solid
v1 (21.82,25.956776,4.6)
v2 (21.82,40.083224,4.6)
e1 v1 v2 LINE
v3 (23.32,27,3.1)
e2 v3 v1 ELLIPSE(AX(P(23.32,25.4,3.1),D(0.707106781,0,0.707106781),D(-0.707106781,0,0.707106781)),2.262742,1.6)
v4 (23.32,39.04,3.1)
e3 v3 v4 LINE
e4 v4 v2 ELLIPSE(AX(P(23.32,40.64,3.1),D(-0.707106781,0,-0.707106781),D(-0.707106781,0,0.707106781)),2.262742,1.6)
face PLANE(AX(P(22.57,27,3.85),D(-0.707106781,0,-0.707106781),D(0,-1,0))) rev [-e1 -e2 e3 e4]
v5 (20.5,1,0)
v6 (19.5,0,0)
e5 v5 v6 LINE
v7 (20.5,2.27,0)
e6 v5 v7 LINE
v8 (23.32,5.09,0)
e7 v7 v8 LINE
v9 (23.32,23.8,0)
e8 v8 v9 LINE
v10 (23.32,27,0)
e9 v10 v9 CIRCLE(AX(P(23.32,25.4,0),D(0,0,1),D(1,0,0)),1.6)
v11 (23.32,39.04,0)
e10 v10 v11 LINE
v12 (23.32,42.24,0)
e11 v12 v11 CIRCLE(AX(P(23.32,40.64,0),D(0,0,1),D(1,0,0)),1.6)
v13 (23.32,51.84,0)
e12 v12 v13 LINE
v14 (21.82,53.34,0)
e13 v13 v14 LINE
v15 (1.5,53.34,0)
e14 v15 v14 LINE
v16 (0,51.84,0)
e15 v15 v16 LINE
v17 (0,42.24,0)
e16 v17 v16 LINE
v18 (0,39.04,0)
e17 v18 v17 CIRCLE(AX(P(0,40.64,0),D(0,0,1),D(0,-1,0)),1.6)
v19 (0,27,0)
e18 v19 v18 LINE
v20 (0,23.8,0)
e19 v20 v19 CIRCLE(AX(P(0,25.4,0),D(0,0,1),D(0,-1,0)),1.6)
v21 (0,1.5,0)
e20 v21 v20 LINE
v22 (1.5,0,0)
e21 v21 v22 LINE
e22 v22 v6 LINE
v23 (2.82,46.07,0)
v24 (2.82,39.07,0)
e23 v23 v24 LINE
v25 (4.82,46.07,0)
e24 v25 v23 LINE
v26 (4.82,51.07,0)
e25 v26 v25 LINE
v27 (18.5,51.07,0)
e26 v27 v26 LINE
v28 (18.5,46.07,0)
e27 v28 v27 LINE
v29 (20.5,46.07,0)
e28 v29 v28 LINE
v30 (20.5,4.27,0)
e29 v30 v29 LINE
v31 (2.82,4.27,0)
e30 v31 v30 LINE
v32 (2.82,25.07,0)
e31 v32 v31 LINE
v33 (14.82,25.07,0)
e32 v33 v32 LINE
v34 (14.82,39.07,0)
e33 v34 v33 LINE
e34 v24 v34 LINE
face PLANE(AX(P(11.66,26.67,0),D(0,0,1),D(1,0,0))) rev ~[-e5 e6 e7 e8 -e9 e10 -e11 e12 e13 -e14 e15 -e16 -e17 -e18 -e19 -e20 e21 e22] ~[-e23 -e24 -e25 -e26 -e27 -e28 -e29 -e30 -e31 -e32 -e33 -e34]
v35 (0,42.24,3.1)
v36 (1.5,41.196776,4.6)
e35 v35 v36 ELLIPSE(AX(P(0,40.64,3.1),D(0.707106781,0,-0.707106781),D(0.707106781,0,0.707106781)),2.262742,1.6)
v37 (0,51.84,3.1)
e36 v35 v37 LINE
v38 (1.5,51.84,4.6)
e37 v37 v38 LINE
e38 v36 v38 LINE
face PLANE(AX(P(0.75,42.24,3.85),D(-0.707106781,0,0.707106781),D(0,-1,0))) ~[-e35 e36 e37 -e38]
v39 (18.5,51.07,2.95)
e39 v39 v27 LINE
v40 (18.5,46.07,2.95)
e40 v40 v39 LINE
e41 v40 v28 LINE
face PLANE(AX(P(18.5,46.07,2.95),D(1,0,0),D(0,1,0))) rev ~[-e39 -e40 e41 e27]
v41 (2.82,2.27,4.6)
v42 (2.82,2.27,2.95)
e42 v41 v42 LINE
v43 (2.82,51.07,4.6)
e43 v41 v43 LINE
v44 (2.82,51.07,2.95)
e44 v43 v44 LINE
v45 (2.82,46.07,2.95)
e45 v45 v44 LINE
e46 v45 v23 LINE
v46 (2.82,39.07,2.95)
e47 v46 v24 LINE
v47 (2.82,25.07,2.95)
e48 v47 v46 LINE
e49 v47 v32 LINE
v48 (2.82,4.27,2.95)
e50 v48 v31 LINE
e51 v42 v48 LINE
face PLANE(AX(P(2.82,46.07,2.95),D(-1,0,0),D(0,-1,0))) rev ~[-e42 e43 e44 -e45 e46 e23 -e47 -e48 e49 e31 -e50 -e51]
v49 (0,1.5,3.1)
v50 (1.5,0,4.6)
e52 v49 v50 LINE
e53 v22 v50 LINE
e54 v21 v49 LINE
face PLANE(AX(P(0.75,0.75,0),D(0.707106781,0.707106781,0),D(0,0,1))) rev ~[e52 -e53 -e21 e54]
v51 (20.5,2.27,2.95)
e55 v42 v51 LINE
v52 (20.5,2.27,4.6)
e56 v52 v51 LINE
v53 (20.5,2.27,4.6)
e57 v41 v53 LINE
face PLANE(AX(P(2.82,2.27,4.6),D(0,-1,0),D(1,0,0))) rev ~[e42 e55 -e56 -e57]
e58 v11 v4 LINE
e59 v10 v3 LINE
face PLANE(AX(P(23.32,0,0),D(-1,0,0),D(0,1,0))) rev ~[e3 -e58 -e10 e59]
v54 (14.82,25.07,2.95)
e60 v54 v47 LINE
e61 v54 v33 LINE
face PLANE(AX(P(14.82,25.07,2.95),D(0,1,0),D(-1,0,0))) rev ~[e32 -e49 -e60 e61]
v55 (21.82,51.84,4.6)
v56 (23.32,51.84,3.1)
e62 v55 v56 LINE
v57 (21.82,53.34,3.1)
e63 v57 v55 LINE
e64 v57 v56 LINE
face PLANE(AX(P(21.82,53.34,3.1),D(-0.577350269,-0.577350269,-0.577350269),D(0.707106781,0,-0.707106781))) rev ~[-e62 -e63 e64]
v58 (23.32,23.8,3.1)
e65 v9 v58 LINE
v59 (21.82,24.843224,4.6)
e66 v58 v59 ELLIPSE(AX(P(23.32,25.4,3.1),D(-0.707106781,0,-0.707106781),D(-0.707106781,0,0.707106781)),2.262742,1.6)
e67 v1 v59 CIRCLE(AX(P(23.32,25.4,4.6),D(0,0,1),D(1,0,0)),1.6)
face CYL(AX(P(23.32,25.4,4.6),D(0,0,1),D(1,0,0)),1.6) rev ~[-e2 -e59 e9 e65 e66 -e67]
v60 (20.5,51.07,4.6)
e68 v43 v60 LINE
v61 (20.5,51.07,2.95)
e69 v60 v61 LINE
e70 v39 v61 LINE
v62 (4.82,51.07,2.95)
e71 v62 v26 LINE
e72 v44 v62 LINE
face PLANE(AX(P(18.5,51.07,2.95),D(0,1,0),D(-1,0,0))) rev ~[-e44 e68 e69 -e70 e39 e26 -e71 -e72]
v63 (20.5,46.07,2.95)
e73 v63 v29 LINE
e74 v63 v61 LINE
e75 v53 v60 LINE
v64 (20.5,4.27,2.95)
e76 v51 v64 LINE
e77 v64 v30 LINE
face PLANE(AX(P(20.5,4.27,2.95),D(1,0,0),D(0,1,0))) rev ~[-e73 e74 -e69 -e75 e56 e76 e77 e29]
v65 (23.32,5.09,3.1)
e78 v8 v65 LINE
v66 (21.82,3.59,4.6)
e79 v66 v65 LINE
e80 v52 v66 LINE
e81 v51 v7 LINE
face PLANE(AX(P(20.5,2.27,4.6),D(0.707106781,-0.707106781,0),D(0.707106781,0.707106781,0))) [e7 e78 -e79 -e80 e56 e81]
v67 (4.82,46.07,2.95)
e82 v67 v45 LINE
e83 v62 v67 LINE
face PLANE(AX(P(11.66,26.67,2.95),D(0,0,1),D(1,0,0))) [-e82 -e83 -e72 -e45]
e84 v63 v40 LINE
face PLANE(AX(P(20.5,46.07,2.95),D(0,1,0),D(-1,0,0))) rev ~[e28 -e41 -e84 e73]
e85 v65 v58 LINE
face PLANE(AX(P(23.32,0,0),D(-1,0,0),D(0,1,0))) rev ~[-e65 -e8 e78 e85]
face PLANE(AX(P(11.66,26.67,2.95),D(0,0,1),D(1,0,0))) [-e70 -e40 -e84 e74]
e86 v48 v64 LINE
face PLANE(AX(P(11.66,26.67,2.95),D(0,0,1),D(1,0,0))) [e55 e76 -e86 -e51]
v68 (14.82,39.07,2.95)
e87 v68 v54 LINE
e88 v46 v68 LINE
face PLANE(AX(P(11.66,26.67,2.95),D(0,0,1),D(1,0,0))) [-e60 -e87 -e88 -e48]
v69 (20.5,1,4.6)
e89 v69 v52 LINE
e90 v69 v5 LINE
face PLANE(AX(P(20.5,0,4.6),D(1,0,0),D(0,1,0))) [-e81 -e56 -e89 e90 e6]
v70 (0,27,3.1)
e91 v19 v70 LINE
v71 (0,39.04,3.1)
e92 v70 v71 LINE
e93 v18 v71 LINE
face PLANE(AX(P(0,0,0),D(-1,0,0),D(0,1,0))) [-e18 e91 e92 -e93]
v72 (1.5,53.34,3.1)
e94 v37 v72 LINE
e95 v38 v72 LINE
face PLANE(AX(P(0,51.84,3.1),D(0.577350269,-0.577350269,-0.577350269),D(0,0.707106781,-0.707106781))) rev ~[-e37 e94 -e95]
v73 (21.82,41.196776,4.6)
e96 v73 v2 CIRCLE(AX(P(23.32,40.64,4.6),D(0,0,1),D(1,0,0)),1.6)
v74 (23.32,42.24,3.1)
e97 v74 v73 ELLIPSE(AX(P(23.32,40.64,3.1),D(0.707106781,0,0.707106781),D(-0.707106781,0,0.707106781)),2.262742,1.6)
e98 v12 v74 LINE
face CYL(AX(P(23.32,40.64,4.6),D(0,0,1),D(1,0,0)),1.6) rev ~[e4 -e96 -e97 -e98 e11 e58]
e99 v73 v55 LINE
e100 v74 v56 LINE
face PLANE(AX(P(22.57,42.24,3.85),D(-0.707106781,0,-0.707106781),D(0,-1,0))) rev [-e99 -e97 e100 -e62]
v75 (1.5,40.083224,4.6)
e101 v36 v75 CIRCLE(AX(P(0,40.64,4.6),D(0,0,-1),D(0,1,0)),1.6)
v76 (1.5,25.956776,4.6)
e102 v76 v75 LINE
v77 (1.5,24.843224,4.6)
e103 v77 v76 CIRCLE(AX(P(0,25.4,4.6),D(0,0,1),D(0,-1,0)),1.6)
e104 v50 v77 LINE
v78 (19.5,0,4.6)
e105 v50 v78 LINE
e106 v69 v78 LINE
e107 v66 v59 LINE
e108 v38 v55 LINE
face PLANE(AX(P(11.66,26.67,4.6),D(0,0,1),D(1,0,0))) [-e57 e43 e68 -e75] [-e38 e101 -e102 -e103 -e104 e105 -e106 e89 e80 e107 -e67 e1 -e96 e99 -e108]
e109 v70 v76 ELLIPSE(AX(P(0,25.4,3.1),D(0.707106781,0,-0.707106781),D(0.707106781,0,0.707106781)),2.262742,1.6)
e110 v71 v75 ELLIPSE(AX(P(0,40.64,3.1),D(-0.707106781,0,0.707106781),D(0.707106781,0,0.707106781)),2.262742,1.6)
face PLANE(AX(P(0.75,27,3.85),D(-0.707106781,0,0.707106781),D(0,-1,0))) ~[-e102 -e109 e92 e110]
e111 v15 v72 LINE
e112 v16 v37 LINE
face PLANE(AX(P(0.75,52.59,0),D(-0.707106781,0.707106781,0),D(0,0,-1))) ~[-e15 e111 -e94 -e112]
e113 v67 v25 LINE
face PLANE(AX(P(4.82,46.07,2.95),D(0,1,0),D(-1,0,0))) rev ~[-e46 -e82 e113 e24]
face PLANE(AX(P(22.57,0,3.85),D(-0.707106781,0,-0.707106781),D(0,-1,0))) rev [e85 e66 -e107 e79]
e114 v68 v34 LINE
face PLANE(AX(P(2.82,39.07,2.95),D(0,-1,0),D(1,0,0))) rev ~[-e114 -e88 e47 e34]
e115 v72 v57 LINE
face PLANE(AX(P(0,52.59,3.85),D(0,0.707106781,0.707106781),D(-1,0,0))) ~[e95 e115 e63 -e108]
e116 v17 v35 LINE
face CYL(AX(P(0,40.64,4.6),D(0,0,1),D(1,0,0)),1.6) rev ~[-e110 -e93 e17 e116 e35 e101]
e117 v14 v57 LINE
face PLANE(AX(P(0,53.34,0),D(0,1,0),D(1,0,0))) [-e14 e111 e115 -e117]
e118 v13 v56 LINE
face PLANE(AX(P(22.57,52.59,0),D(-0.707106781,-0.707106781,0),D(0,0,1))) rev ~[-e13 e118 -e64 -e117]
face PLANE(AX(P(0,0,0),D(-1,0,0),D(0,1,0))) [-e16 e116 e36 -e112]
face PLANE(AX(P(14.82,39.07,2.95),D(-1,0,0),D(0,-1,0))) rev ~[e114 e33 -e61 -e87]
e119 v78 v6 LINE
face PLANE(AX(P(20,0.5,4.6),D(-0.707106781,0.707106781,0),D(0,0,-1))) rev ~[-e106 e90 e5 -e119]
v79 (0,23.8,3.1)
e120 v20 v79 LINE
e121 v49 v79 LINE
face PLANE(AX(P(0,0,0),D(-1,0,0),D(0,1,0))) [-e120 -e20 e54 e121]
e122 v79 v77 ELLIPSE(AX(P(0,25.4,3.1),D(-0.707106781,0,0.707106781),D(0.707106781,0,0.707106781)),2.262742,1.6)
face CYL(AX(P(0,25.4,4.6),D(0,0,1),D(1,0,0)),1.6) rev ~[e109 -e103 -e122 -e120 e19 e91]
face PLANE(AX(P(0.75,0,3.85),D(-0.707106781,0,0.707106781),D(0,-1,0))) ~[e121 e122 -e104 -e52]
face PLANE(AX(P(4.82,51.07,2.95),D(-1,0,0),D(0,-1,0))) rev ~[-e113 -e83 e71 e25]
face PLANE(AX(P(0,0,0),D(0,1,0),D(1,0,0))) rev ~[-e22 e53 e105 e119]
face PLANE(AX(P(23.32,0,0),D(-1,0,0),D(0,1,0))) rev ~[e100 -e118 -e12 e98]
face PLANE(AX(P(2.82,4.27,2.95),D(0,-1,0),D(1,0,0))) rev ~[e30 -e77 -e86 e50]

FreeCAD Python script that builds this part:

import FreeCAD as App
import Part
import Sketcher
Q = App.Units.Quantity


def edges_at(feature, points):
    """Names of the edges that pass closest to the given points."""
    edges = feature.Shape.Edges
    near = lambda p: min(range(len(edges)), key=lambda i: edges[i].distToShape(Part.Vertex(*p))[0])
    return sorted({f"Edge{near(p) + 1}" for p in points})

doc = App.newDocument("Part")
body = doc.addObject("PartDesign::Body", "Body")

# Sketch on XY plane
sketch1 = body.newObject("Sketcher::SketchObject", "Sketch")
sketch1.AttachmentSupport = (doc.getObject("XY_Plane"), [""])
sketch1.MapMode = "FlatFace"
sketch1.addGeometry(Part.LineSegment(App.Vector(0, 53, 0), App.Vector(0, 0, 0)), False)
sketch1.addGeometry(Part.LineSegment(App.Vector(0, 0, 0), App.Vector(23, 0, 0)), False)
sketch1.addGeometry(Part.LineSegment(App.Vector(23, 0, 0), App.Vector(23, 53, 0)), False)
sketch1.addGeometry(Part.LineSegment(App.Vector(23, 53, 0), App.Vector(0, 53, 0)), False)
sketch1.addConstraint(Sketcher.Constraint("Coincident", 0, 2, 1, 1))
sketch1.addConstraint(Sketcher.Constraint("Coincident", 1, 2, 2, 1))
sketch1.addConstraint(Sketcher.Constraint("Coincident", 2, 2, 3, 1))
sketch1.addConstraint(Sketcher.Constraint("Coincident", 3, 2, 0, 1))
sketch1.addConstraint(Sketcher.Constraint("Vertical", 0))
sketch1.addConstraint(Sketcher.Constraint("Horizontal", 1))
sketch1.addConstraint(Sketcher.Constraint("Vertical", 2))
sketch1.addConstraint(Sketcher.Constraint("Horizontal", 3))
sketch1.addConstraint(Sketcher.Constraint("Coincident", 0, 2, -1, 1))
sketch1.addConstraint(Sketcher.Constraint("DistanceX", 1, 1, 1, 2, Q("23.32 mm")))
sketch1.addConstraint(Sketcher.Constraint("DistanceY", 0, 2, 0, 1, Q("53.34 mm")))
pad1 = body.newObject("PartDesign::Pad", "Pad")
pad1.Profile = sketch1
pad1.Length = 4.6

# Sketch on XY plane
sketch2 = body.newObject("Sketcher::SketchObject", "Sketch001")
sketch2.AttachmentSupport = (doc.getObject("XY_Plane"), [""])
sketch2.MapMode = "FlatFace"
sketch2.AttachmentOffset = App.Placement(App.Vector(0, 0, 4.6), App.Rotation())
sketch2.addGeometry(Part.LineSegment(App.Vector(3, 51, 0), App.Vector(3, 2, 0)), False)
sketch2.addGeometry(Part.LineSegment(App.Vector(3, 2, 0), App.Vector(20, 2, 0)), False)
sketch2.addGeometry(Part.LineSegment(App.Vector(20, 2, 0), App.Vector(20, 51, 0)), False)
sketch2.addGeometry(Part.LineSegment(App.Vector(20, 51, 0), App.Vector(3, 51, 0)), False)
sketch2.addConstraint(Sketcher.Constraint("Coincident", 0, 2, 1, 1))
sketch2.addConstraint(Sketcher.Constraint("Coincident", 1, 2, 2, 1))
sketch2.addConstraint(Sketcher.Constraint("Coincident", 2, 2, 3, 1))
sketch2.addConstraint(Sketcher.Constraint("Coincident", 3, 2, 0, 1))
sketch2.addConstraint(Sketcher.Constraint("Vertical", 0))
sketch2.addConstraint(Sketcher.Constraint("Horizontal", 1))
sketch2.addConstraint(Sketcher.Constraint("Vertical", 2))
sketch2.addConstraint(Sketcher.Constraint("Horizontal", 3))
sketch2.addConstraint(Sketcher.Constraint("DistanceY", 0, 2, 0, 1, Q("48.8 mm")))
sketch2.addConstraint(Sketcher.Constraint("DistanceX", 1, 1, 1, 2, Q("17.68 mm")))
sketch2.addConstraint(Sketcher.Constraint("DistanceX", -1, 1, 1, 2, Q("20.5 mm")))
sketch2.addConstraint(Sketcher.Constraint("DistanceY", -1, 1, 0, 2, Q("2.27 mm")))
pocket1 = body.newObject("PartDesign::Pocket", "Pocket")
pocket1.Profile = sketch2
pocket1.Length = 1.65

# Sketch on XY plane
sketch3 = body.newObject("Sketcher::SketchObject", "Sketch002")
sketch3.AttachmentSupport = (doc.getObject("XY_Plane"), [""])
sketch3.MapMode = "FlatFace"
sketch3.AttachmentOffset = App.Placement(App.Vector(0, 0, 2.95), App.Rotation())
sketch3.addGeometry(Part.LineSegment(App.Vector(2.8, 4.3, 0), App.Vector(20.5, 4.3, 0)), False)
sketch3.addGeometry(Part.LineSegment(App.Vector(20.5, 4.3, 0), App.Vector(20.5, 46.1, 0)), False)
sketch3.addGeometry(Part.LineSegment(App.Vector(20.5, 46.1, 0), App.Vector(18.5, 46.1, 0)), False)
sketch3.addGeometry(Part.LineSegment(App.Vector(18.5, 46.1, 0), App.Vector(18.5, 51.1, 0)), False)
sketch3.addGeometry(Part.LineSegment(App.Vector(18.5, 51.1, 0), App.Vector(4.8, 51.1, 0)), False)
sketch3.addGeometry(Part.LineSegment(App.Vector(4.8, 51.1, 0), App.Vector(4.8, 46.1, 0)), False)
sketch3.addGeometry(Part.LineSegment(App.Vector(4.8, 46.1, 0), App.Vector(2.8, 46.1, 0)), False)
sketch3.addGeometry(Part.LineSegment(App.Vector(2.8, 46.1, 0), App.Vector(2.8, 39.1, 0)), False)
sketch3.addGeometry(Part.LineSegment(App.Vector(2.8, 39.1, 0), App.Vector(14.8, 39.1, 0)), False)
sketch3.addGeometry(Part.LineSegment(App.Vector(14.8, 39.1, 0), App.Vector(14.8, 25.1, 0)), False)
sketch3.addGeometry(Part.LineSegment(App.Vector(14.8, 25.1, 0), App.Vector(2.8, 25.1, 0)), False)
sketch3.addGeometry(Part.LineSegment(App.Vector(2.8, 25.1, 0), App.Vector(2.8, 4.3, 0)), False)
sketch3.addConstraint(Sketcher.Constraint("Coincident", 0, 2, 1, 1))
sketch3.addConstraint(Sketcher.Constraint("Coincident", 1, 2, 2, 1))
sketch3.addConstraint(Sketcher.Constraint("Coincident", 2, 2, 3, 1))
sketch3.addConstraint(Sketcher.Constraint("Coincident", 3, 2, 4, 1))
sketch3.addConstraint(Sketcher.Constraint("Coincident", 4, 2, 5, 1))
sketch3.addConstraint(Sketcher.Constraint("Coincident", 5, 2, 6, 1))
sketch3.addConstraint(Sketcher.Constraint("Coincident", 6, 2, 7, 1))
sketch3.addConstraint(Sketcher.Constraint("Coincident", 7, 2, 8, 1))
sketch3.addConstraint(Sketcher.Constraint("Coincident", 8, 2, 9, 1))
sketch3.addConstraint(Sketcher.Constraint("Coincident", 9, 2, 10, 1))
sketch3.addConstraint(Sketcher.Constraint("Coincident", 10, 2, 11, 1))
sketch3.addConstraint(Sketcher.Constraint("Coincident", 11, 2, 0, 1))
sketch3.addConstraint(Sketcher.Constraint("Horizontal", 0))
sketch3.addConstraint(Sketcher.Constraint("Vertical", 1))
sketch3.addConstraint(Sketcher.Constraint("Horizontal", 2))
sketch3.addConstraint(Sketcher.Constraint("Vertical", 3))
sketch3.addConstraint(Sketcher.Constraint("Horizontal", 4))
sketch3.addConstraint(Sketcher.Constraint("Vertical", 5))
sketch3.addConstraint(Sketcher.Constraint("Horizontal", 6))
sketch3.addConstraint(Sketcher.Constraint("Vertical", 7))
sketch3.addConstraint(Sketcher.Constraint("Horizontal", 8))
sketch3.addConstraint(Sketcher.Constraint("Vertical", 9))
sketch3.addConstraint(Sketcher.Constraint("Horizontal", 10))
sketch3.addConstraint(Sketcher.Constraint("Vertical", 11))
sketch3.addConstraint(Sketcher.Constraint("Horizontal", 2, 2, 5, 2))
sketch3.addConstraint(Sketcher.Constraint("Vertical", 7, 2, 10, 2))
sketch3.addConstraint(Sketcher.Constraint("Equal", 2, 6))
sketch3.addConstraint(Sketcher.Constraint("DistanceX", 2, 2, 2, 1, Q("2 mm")))
sketch3.addConstraint(Sketcher.Constraint("DistanceX", 8, 1, 8, 2, Q("12 mm")))
sketch3.addConstraint(Sketcher.Constraint("DistanceY", 3, 1, 3, 2, Q("5 mm")))
sketch3.addConstraint(Sketcher.Constraint("DistanceY", 7, 2, 7, 1, Q("7 mm")))
sketch3.addConstraint(Sketcher.Constraint("DistanceY", 9, 2, 9, 1, Q("14 mm")))
sketch3.addConstraint(Sketcher.Constraint("DistanceY", 1, 1, 1, 2, Q("41.8 mm")))
sketch3.addConstraint(Sketcher.Constraint("DistanceX", 0, 1, 0, 2, Q("17.68 mm")))
sketch3.addConstraint(Sketcher.Constraint("DistanceX", -1, 1, 0, 2, Q("20.5 mm")))
sketch3.addConstraint(Sketcher.Constraint("DistanceY", -1, 1, 0, 2, Q("4.27 mm")))
pocket2 = body.newObject("PartDesign::Pocket", "Pocket001")
pocket2.Profile = sketch3
pocket2.Length = 3

# Sketch on XY plane
sketch4 = body.newObject("Sketcher::SketchObject", "Sketch003")
sketch4.AttachmentSupport = (doc.getObject("XY_Plane"), [""])
sketch4.MapMode = "FlatFace"
sketch4.AttachmentOffset = App.Placement(App.Vector(0, 0, 4.6), App.Rotation())
sketch4.addGeometry(Part.Circle(App.Vector(23.3, 40.6, 0), App.Vector(0, 0, 1), 1.6), False)
sketch4.addGeometry(Part.Circle(App.Vector(23.3, 25.4, 0), App.Vector(0, 0, 1), 1.6), False)
sketch4.addGeometry(Part.Circle(App.Vector(0, 40.6, 0), App.Vector(0, 0, 1), 1.6), False)
sketch4.addGeometry(Part.Circle(App.Vector(0, 25.4, 0), App.Vector(0, 0, 1), 1.6), False)
sketch4.addConstraint(Sketcher.Constraint("Equal", 0, 1))
sketch4.addConstraint(Sketcher.Constraint("Equal", 1, 2))
sketch4.addConstraint(Sketcher.Constraint("Equal", 2, 3))
sketch4.addConstraint(Sketcher.Constraint("PointOnObject", 2, 3, -2))
sketch4.addConstraint(Sketcher.Constraint("PointOnObject", 3, 3, -2))
sketch4.addConstraint(Sketcher.Constraint("Horizontal", 0, 3, 2, 3))
sketch4.addConstraint(Sketcher.Constraint("Horizontal", 1, 3, 3, 3))
sketch4.addConstraint(Sketcher.Constraint("Vertical", 0, 3, 1, 3))
sketch4.addConstraint(Sketcher.Constraint("Diameter", 0, Q("3.2 mm")))
sketch4.addConstraint(Sketcher.Constraint("DistanceY", -1, 1, 1, 3, Q("25.4 mm")))
sketch4.addConstraint(Sketcher.Constraint("DistanceX", -1, 1, 0, 3, Q("23.32 mm")))
sketch4.addConstraint(Sketcher.Constraint("DistanceY", -1, 1, 0, 3, Q("40.64 mm")))
pocket3 = body.newObject("PartDesign::Pocket", "Pocket002")
pocket3.Profile = sketch4
pocket3.Length = 5
doc.recompute()

chamfer = body.newObject("PartDesign::Chamfer", "Chamfer")
chamfer.Base = (pocket3, edges_at(pocket3, [
    (23.32, 47.79, 4.6),
    (11.66, 53.34, 4.6),
    (0, 47.79, 4.6),
    (0, 33.02, 4.6),
    (23.32, 33.02, 4.6),
    (23.32, 11.9, 4.6),
    (0, 11.9, 4.6),
    (23.32, 0, 2.3),
    (0, 0, 2.3),
    (23.32, 53.34, 2.3),
    (0, 53.34, 2.3),
]))
chamfer.Size = 1.5

# Sketch on XY plane
sketch5 = body.newObject("Sketcher::SketchObject", "Sketch004")
sketch5.AttachmentSupport = (doc.getObject("XY_Plane"), [""])
sketch5.MapMode = "FlatFace"
sketch5.AttachmentOffset = App.Placement(App.Vector(0, 0, 4.6), App.Rotation())
sketch5.addGeometry(Part.LineSegment(App.Vector(24.2, 0, 0), App.Vector(24.2, 6, 0)), False)
sketch5.addGeometry(Part.LineSegment(App.Vector(24.2, 6, 0), App.Vector(20.5, 2.3, 0)), False)
sketch5.addGeometry(Part.LineSegment(App.Vector(20.5, 2.3, 0), App.Vector(20.5, 0, 0)), False)
sketch5.addGeometry(Part.LineSegment(App.Vector(20.5, 0, 0), App.Vector(24.2, 0, 0)), False)
sketch5.addConstraint(Sketcher.Constraint("Coincident", 0, 2, 1, 1))
sketch5.addConstraint(Sketcher.Constraint("Coincident", 1, 2, 2, 1))
sketch5.addConstraint(Sketcher.Constraint("Coincident", 2, 2, 3, 1))
sketch5.addConstraint(Sketcher.Constraint("Coincident", 3, 2, 0, 1))
sketch5.addConstraint(Sketcher.Constraint("Vertical", 0))
sketch5.addConstraint(Sketcher.Constraint("Vertical", 2))
sketch5.addConstraint(Sketcher.Constraint("Horizontal", 3))
sketch5.addConstraint(Sketcher.Constraint("PointOnObject", 2, 2, -1))
sketch5.addConstraint(Sketcher.Constraint("DistanceY", 0, 1, 0, 2, Q("6 mm")))
sketch5.addConstraint(Sketcher.Constraint("Angle", 1, Q("-135 deg")))
sketch5.addConstraint(Sketcher.Constraint("DistanceX", 3, 1, 3, 2, Q("3.73 mm")))
sketch5.addConstraint(Sketcher.Constraint("DistanceX", -1, 1, 1, 2, Q("20.5 mm")))
pocket4 = body.newObject("PartDesign::Pocket", "Pocket003")
pocket4.Profile = sketch5
pocket4.Length = 5
doc.recompute()

chamfer2 = body.newObject("PartDesign::Chamfer", "Chamfer001")
chamfer2.Base = (pocket4, edges_at(pocket4, [(20.5, 0, 2.3)]))
chamfer2.Size = 1

doc.recompute()
